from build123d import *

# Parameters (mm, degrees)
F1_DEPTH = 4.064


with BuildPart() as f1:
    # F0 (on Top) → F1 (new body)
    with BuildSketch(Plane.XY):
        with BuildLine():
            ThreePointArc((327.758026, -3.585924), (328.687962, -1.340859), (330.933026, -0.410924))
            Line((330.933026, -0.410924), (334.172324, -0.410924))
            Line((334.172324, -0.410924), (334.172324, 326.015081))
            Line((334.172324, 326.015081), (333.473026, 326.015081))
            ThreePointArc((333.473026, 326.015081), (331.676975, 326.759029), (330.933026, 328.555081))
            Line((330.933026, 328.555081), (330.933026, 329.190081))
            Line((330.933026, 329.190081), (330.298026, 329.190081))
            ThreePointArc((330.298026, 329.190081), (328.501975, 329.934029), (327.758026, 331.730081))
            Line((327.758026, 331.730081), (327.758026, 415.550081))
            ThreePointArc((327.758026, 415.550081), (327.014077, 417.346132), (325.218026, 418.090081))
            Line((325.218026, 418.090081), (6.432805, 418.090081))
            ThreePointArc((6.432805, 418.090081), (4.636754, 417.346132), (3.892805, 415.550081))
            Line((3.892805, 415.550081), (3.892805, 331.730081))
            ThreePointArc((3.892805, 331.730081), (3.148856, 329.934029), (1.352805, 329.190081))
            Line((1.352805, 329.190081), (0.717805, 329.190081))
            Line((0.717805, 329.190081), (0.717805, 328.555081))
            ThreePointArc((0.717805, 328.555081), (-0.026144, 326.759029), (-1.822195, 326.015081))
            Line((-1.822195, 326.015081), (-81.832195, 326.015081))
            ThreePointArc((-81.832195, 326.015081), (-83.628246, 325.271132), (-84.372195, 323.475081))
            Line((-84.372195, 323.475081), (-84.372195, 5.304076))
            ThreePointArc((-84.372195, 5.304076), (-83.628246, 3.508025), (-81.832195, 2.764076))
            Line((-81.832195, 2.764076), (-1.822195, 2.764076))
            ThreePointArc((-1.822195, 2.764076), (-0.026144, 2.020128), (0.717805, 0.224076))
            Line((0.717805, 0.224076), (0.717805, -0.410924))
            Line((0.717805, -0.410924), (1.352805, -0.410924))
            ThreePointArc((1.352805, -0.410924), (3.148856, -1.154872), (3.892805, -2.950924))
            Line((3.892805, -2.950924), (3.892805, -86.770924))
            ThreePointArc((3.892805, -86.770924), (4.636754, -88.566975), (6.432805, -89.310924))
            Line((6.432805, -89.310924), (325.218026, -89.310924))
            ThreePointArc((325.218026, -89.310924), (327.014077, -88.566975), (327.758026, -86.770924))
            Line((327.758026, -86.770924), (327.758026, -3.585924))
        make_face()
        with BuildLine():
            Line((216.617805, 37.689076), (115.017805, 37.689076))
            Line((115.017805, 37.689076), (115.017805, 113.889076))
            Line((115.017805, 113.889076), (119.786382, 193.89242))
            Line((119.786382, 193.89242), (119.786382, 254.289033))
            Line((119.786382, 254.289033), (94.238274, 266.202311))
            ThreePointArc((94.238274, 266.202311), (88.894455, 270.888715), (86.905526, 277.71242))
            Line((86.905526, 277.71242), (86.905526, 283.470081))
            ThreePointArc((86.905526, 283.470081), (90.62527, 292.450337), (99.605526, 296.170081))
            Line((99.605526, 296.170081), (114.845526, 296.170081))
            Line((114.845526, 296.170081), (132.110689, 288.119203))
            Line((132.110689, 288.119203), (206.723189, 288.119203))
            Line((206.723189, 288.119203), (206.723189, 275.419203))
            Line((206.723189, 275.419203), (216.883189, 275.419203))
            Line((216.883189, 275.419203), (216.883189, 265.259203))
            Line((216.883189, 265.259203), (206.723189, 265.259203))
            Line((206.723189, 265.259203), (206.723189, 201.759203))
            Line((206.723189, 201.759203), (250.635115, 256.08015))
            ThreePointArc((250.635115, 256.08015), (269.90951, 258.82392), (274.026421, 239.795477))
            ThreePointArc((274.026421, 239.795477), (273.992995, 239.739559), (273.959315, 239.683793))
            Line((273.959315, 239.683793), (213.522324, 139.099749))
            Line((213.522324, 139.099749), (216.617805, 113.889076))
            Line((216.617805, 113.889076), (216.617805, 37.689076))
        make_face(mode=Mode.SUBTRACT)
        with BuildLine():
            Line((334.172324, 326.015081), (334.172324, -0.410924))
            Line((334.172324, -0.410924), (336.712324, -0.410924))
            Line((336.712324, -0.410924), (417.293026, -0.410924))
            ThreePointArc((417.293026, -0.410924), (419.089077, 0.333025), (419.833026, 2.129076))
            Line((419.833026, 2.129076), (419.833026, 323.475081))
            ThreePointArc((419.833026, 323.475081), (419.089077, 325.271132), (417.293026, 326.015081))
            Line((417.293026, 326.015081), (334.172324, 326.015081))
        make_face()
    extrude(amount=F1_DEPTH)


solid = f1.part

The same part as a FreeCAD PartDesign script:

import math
import FreeCAD as App
import Part
import Sketcher
Q = App.Units.Quantity

doc = App.newDocument("Part")
body = doc.addObject("PartDesign::Body", "Body")

# Sketch on XY plane
sketch1 = body.newObject("Sketcher::SketchObject", "Sketch")
sketch1.AttachmentSupport = (doc.getObject("XY_Plane"), [""])
sketch1.MapMode = "FlatFace"
sketch1.addGeometry([
    Part.ArcOfCircle(Part.Circle(App.Vector(330.93, -3.59, 0), App.Vector(0, 0, 1), 3.17), math.radians(90), math.radians(180)),  # 0
    Part.LineSegment(App.Vector(330.93, -0.41, 0), App.Vector(417.29, -0.41, 0)),  # 1
    Part.ArcOfCircle(Part.Circle(App.Vector(417.29, 2.13, 0), App.Vector(0, 0, 1), 2.54), math.radians(-90), math.radians(0)),  # 2
    Part.LineSegment(App.Vector(419.83, 2.13, 0), App.Vector(419.83, 323.48, 0)),  # 3
    Part.ArcOfCircle(Part.Circle(App.Vector(417.29, 323.48, 0), App.Vector(0, 0, 1), 2.54), math.radians(0), math.radians(90)),  # 4
    Part.LineSegment(App.Vector(417.29, 326.02, 0), App.Vector(333.47, 326.02, 0)),  # 5
    Part.ArcOfCircle(Part.Circle(App.Vector(333.47, 328.56, 0), App.Vector(0, 0, 1), 2.54), math.radians(180), math.radians(270)),  # 6
    Part.LineSegment(App.Vector(330.93, 328.56, 0), App.Vector(330.93, 329.19, 0)),  # 7
    Part.LineSegment(App.Vector(330.93, 329.19, 0), App.Vector(330.3, 329.19, 0)),  # 8
    Part.ArcOfCircle(Part.Circle(App.Vector(330.3, 331.73, 0), App.Vector(0, 0, 1), 2.54), math.radians(180), math.radians(270)),  # 9
    Part.LineSegment(App.Vector(327.76, 331.73, 0), App.Vector(327.76, 415.55, 0)),  # 10
    Part.ArcOfCircle(Part.Circle(App.Vector(325.22, 415.55, 0), App.Vector(0, 0, 1), 2.54), math.radians(0), math.radians(90)),  # 11
    Part.LineSegment(App.Vector(325.22, 418.09, 0), App.Vector(6.43, 418.09, 0)),  # 12
    Part.ArcOfCircle(Part.Circle(App.Vector(6.43, 415.55, 0), App.Vector(0, 0, 1), 2.54), math.radians(90), math.radians(180)),  # 13
    Part.LineSegment(App.Vector(3.89, 415.55, 0), App.Vector(3.89, 331.73, 0)),  # 14
    Part.ArcOfCircle(Part.Circle(App.Vector(1.35, 331.73, 0), App.Vector(0, 0, 1), 2.54), math.radians(-90), math.radians(0)),  # 15
    Part.LineSegment(App.Vector(1.35, 329.19, 0), App.Vector(0.72, 329.19, 0)),  # 16
    Part.LineSegment(App.Vector(0.72, 329.19, 0), App.Vector(0.72, 328.56, 0)),  # 17
    Part.ArcOfCircle(Part.Circle(App.Vector(-1.82, 328.56, 0), App.Vector(0, 0, 1), 2.54), math.radians(-90), math.radians(0)),  # 18
    Part.LineSegment(App.Vector(-1.82, 326.02, 0), App.Vector(-81.83, 326.02, 0)),  # 19
    Part.ArcOfCircle(Part.Circle(App.Vector(-81.83, 323.48, 0), App.Vector(0, 0, 1), 2.54), math.radians(90), math.radians(180)),  # 20
    Part.LineSegment(App.Vector(-84.37, 323.48, 0), App.Vector(-84.37, 5.3, 0)),  # 21
    Part.ArcOfCircle(Part.Circle(App.Vector(-81.83, 5.3, 0), App.Vector(0, 0, 1), 2.54), math.radians(-180), math.radians(-90)),  # 22
    Part.LineSegment(App.Vector(-81.83, 2.76, 0), App.Vector(-1.82, 2.76, 0)),  # 23
    Part.ArcOfCircle(Part.Circle(App.Vector(-1.82, 0.22, 0), App.Vector(0, 0, 1), 2.54), math.radians(0), math.radians(90)),  # 24
    Part.LineSegment(App.Vector(0.72, 0.22, 0), App.Vector(0.72, -0.41, 0)),  # 25
    Part.LineSegment(App.Vector(0.72, -0.41, 0), App.Vector(1.35, -0.41, 0)),  # 26
    Part.ArcOfCircle(Part.Circle(App.Vector(1.35, -2.95, 0), App.Vector(0, 0, 1), 2.54), math.radians(0), math.radians(90)),  # 27
    Part.LineSegment(App.Vector(3.89, -2.95, 0), App.Vector(3.89, -86.77, 0)),  # 28
    Part.ArcOfCircle(Part.Circle(App.Vector(6.43, -86.77, 0), App.Vector(0, 0, 1), 2.54), math.radians(-180), math.radians(-90)),  # 29
    Part.LineSegment(App.Vector(6.43, -89.31, 0), App.Vector(325.22, -89.31, 0)),  # 30
    Part.ArcOfCircle(Part.Circle(App.Vector(325.22, -86.77, 0), App.Vector(0, 0, 1), 2.54), math.radians(-90), math.radians(0)),  # 31
    Part.LineSegment(App.Vector(327.76, -86.77, 0), App.Vector(327.76, -3.59, 0)),  # 32
    Part.LineSegment(App.Vector(216.62, 113.89, 0), App.Vector(216.62, 37.69, 0)),  # 33
    Part.LineSegment(App.Vector(216.62, 37.69, 0), App.Vector(115.02, 37.69, 0)),  # 34
    Part.LineSegment(App.Vector(115.02, 37.69, 0), App.Vector(115.02, 113.89, 0)),  # 35
    Part.LineSegment(App.Vector(115.02, 113.89, 0), App.Vector(119.79, 193.89, 0)),  # 36
    Part.LineSegment(App.Vector(119.79, 193.89, 0), App.Vector(119.79, 254.29, 0)),  # 37
    Part.LineSegment(App.Vector(119.79, 254.29, 0), App.Vector(94.24, 266.2, 0)),  # 38
    Part.ArcOfCircle(Part.Circle(App.Vector(99.61, 277.71, 0), App.Vector(0, 0, 1), 12.7), math.radians(-180), math.radians(-115)),  # 39
    Part.LineSegment(App.Vector(86.91, 277.71, 0), App.Vector(86.91, 283.47, 0)),  # 40
    Part.ArcOfCircle(Part.Circle(App.Vector(99.61, 283.47, 0), App.Vector(0, 0, 1), 12.7), math.radians(90), math.radians(180)),  # 41
    Part.LineSegment(App.Vector(99.61, 296.17, 0), App.Vector(114.85, 296.17, 0)),  # 42
    Part.LineSegment(App.Vector(114.85, 296.17, 0), App.Vector(132.11, 288.12, 0)),  # 43
    Part.LineSegment(App.Vector(132.11, 288.12, 0), App.Vector(206.72, 288.12, 0)),  # 44
    Part.LineSegment(App.Vector(206.72, 288.12, 0), App.Vector(206.72, 275.42, 0)),  # 45
    Part.LineSegment(App.Vector(206.72, 275.42, 0), App.Vector(216.88, 275.42, 0)),  # 46
    Part.LineSegment(App.Vector(216.88, 275.42, 0), App.Vector(216.88, 265.26, 0)),  # 47
    Part.LineSegment(App.Vector(216.88, 265.26, 0), App.Vector(206.72, 265.26, 0)),  # 48
    Part.LineSegment(App.Vector(206.72, 265.26, 0), App.Vector(206.72, 201.76, 0)),  # 49
    Part.LineSegment(App.Vector(206.72, 201.76, 0), App.Vector(250.64, 256.08, 0)),  # 50
    Part.ArcOfCircle(Part.Circle(App.Vector(261.75, 247.1, 0), App.Vector(0, 0, 1), 14.29), math.radians(-31), math.radians(141)),  # 51
    Part.ArcOfCircle(Part.Circle(App.Vector(261.7, 247.12, 0), App.Vector(0, 0, 1), 14.34), math.radians(-31.26), math.radians(-30.74)),  # 52
    Part.LineSegment(App.Vector(273.96, 239.68, 0), App.Vector(213.52, 139.1, 0)),  # 53
    Part.LineSegment(App.Vector(213.52, 139.1, 0), App.Vector(216.62, 113.89, 0)),  # 54
], False)
sketch1.addConstraint([
    Sketcher.Constraint("Tangent", 0, 1, 1, 1),
    Sketcher.Constraint("Tangent", 1, 2, 2, 1),
    Sketcher.Constraint("Tangent", 2, 2, 3, 1),
    Sketcher.Constraint("Tangent", 3, 2, 4, 1),
    Sketcher.Constraint("Tangent", 4, 2, 5, 1),
    Sketcher.Constraint("Tangent", 5, 2, 6, 2),
    Sketcher.Constraint("Tangent", 6, 1, 7, 1),
    Sketcher.Constraint("Coincident", 7, 2, 8, 1),
    Sketcher.Constraint("Tangent", 8, 2, 9, 2),
    Sketcher.Constraint("Tangent", 9, 1, 10, 1),
    Sketcher.Constraint("Tangent", 10, 2, 11, 1),
    Sketcher.Constraint("Tangent", 11, 2, 12, 1),
    Sketcher.Constraint("Tangent", 12, 2, 13, 1),
    Sketcher.Constraint("Tangent", 13, 2, 14, 1),
    Sketcher.Constraint("Tangent", 14, 2, 15, 2),
    Sketcher.Constraint("Tangent", 15, 1, 16, 1),
    Sketcher.Constraint("Coincident", 16, 2, 17, 1),
    Sketcher.Constraint("Tangent", 17, 2, 18, 2),
    Sketcher.Constraint("Tangent", 18, 1, 19, 1),
    Sketcher.Constraint("Tangent", 19, 2, 20, 1),
    Sketcher.Constraint("Tangent", 20, 2, 21, 1),
    Sketcher.Constraint("Tangent", 21, 2, 22, 1),
    Sketcher.Constraint("Tangent", 22, 2, 23, 1),
    Sketcher.Constraint("Tangent", 23, 2, 24, 2),
    Sketcher.Constraint("Tangent", 24, 1, 25, 1),
    Sketcher.Constraint("Coincident", 25, 2, 26, 1),
    Sketcher.Constraint("Tangent", 26, 2, 27, 2),
    Sketcher.Constraint("Tangent", 27, 1, 28, 1),
    Sketcher.Constraint("Tangent", 28, 2, 29, 1),
    Sketcher.Constraint("Tangent", 29, 2, 30, 1),
    Sketcher.Constraint("Tangent", 30, 2, 31, 1),
    Sketcher.Constraint("Tangent", 31, 2, 32, 1),
    Sketcher.Constraint("Tangent", 32, 2, 0, 2),
    Sketcher.Constraint("Coincident", 33, 2, 34, 1),
    Sketcher.Constraint("Coincident", 34, 2, 35, 1),
    Sketcher.Constraint("Coincident", 35, 2, 36, 1),
    Sketcher.Constraint("Coincident", 36, 2, 37, 1),
    Sketcher.Constraint("Coincident", 37, 2, 38, 1),
    Sketcher.Constraint("Tangent", 38, 2, 39, 2),
    Sketcher.Constraint("Tangent", 39, 1, 40, 1),
    Sketcher.Constraint("Tangent", 40, 2, 41, 2),
    Sketcher.Constraint("Tangent", 41, 1, 42, 1),
    Sketcher.Constraint("Coincident", 42, 2, 43, 1),
    Sketcher.Constraint("Coincident", 43, 2, 44, 1),
    Sketcher.Constraint("Coincident", 44, 2, 45, 1),
    Sketcher.Constraint("Coincident", 45, 2, 46, 1),
    Sketcher.Constraint("Coincident", 46, 2, 47, 1),
    Sketcher.Constraint("Coincident", 47, 2, 48, 1),
    Sketcher.Constraint("Coincident", 48, 2, 49, 1),
    Sketcher.Constraint("Coincident", 49, 2, 50, 1),
    Sketcher.Constraint("Tangent", 50, 2, 51, 2),
    Sketcher.Constraint("Coincident", 51, 1, 52, 2),
    Sketcher.Constraint("Coincident", 52, 1, 53, 1),
    Sketcher.Constraint("Coincident", 53, 2, 54, 1),
    Sketcher.Constraint("Coincident", 54, 2, 33, 1),
    Sketcher.Constraint("Horizontal", 1),
    Sketcher.Constraint("Vertical", 3),
    Sketcher.Constraint("Horizontal", 5),
    Sketcher.Constraint("Vertical", 7),
    Sketcher.Constraint("Horizontal", 8),
    Sketcher.Constraint("Vertical", 10),
    Sketcher.Constraint("Horizontal", 12),
    Sketcher.Constraint("Vertical", 14),
    Sketcher.Constraint("Horizontal", 16),
    Sketcher.Constraint("Vertical", 17),
    Sketcher.Constraint("Horizontal", 19),
    Sketcher.Constraint("Vertical", 21),
    Sketcher.Constraint("Horizontal", 23),
    Sketcher.Constraint("Vertical", 25),
    Sketcher.Constraint("Horizontal", 26),
    Sketcher.Constraint("Vertical", 28),
    Sketcher.Constraint("Horizontal", 30),
    Sketcher.Constraint("Vertical", 32),
    Sketcher.Constraint("Vertical", 33),
    Sketcher.Constraint("Horizontal", 34),
    Sketcher.Constraint("Vertical", 35),
    Sketcher.Constraint("Vertical", 37),
    Sketcher.Constraint("Vertical", 40),
    Sketcher.Constraint("Horizontal", 42),
    Sketcher.Constraint("Horizontal", 44),
    Sketcher.Constraint("Vertical", 45),
    Sketcher.Constraint("Horizontal", 46),
    Sketcher.Constraint("Vertical", 47),
    Sketcher.Constraint("Horizontal", 48),
    Sketcher.Constraint("Vertical", 49),
    Sketcher.Constraint("Equal", 2, 4),
    Sketcher.Constraint("Equal", 4, 6),
    Sketcher.Constraint("Equal", 6, 9),
    Sketcher.Constraint("Equal", 9, 11),
    Sketcher.Constraint("Equal", 11, 13),
    Sketcher.Constraint("Equal", 13, 15),
    Sketcher.Constraint("Equal", 15, 18),
    Sketcher.Constraint("Equal", 18, 20),
    Sketcher.Constraint("Equal", 20, 22),
    Sketcher.Constraint("Equal", 22, 24),
    Sketcher.Constraint("Equal", 24, 27),
    Sketcher.Constraint("Equal", 27, 29),
    Sketcher.Constraint("Equal", 29, 31),
    Sketcher.Constraint("Equal", 39, 41),
    Sketcher.Constraint("Parallel", 38, 43),
    Sketcher.Constraint("Horizontal", 9, 3, 15, 3),
    Sketcher.Constraint("Horizontal", 6, 3, 18, 3),
    Sketcher.Constraint("Horizontal", 1, 2, 25, 2),
    Sketcher.Constraint("Horizontal", 35, 2, 54, 2),
    Sketcher.Constraint("Vertical", 18, 3, 24, 3),
    Sketcher.Constraint("Vertical", 15, 3, 27, 3),
    Sketcher.Constraint("Vertical", 11, 3, 31, 3),
    Sketcher.Constraint("Vertical", 0, 1, 6, 1),
    Sketcher.Constraint("Vertical", 45, 2, 48, 2),
    Sketcher.Constraint("Equal", 8, 16),
    Sketcher.Constraint("Equal", 26, 7),
    Sketcher.Constraint("Equal", 5, 10),
    Sketcher.Constraint("Equal", 17, 25),
    Sketcher.Constraint("Equal", 14, 28),
    Sketcher.Constraint("Equal", 48, 47),
    Sketcher.Constraint("Radius", 2, Q("0.1 in")),
    Sketcher.Constraint("Radius", 39, Q("0.5000001 in")),
    Sketcher.Constraint("DistanceX", 34, 2, 34, 1, Q("4 in")),
    Sketcher.Constraint("DistanceY", 33, 2, 33, 1, Q("3 in")),
    Sketcher.Constraint("Distance", 54, Q("1 in")),
    Sketcher.Constraint("DistanceX", 1, 1, 1, 2, Q("3.4 in")),
    Sketcher.Constraint("DistanceX", 42, 1, 42, 2, Q("0.6 in")),
    Sketcher.Constraint("DistanceX", 46, 1, 46, 2, Q("0.4 in")),
    Sketcher.Constraint("DistanceY", 45, 2, 45, 1, Q("0.5 in")),
    Sketcher.Constraint("DistanceY", 49, 2, 49, 1, Q("2.5 in")),
    Sketcher.Constraint("Angle", 38, Q("155.000001 deg")),
    Sketcher.Constraint("Angle", 53, Q("-121 deg")),
    Sketcher.Constraint("Angle", 54, Q("-83.000001 deg")),
    Sketcher.Constraint("Radius", 0, Q("0.1249999 in")),
    Sketcher.Constraint("Radius", 51, Q("0.5625 in")),
    Sketcher.Constraint("DistanceX", 19, 2, 19, 1, Q("3.15 in")),
    Sketcher.Constraint("Distance", 43, Q("0.75 in")),
    Sketcher.Constraint("Distance", 50, Q("2.75 in")),
    Sketcher.Constraint("DistanceX", 44, 1, 44, 2, Q("2.9375 in")),
    Sketcher.Constraint("DistanceX", -1, 1, 52, 1, Q("10.7857998 in")),
    Sketcher.Constraint("Radius", 52, 14.338056),
    Sketcher.Constraint("DistanceX", 12, 2, 12, 1, 318.785221),
    Sketcher.Constraint("DistanceY", 40, 1, 40, 2, 5.757661),
    Sketcher.Constraint("Distance", 38, 28.189218),
    Sketcher.Constraint("DistanceY", 3, 1, 3, 2, 321.346005),
    Sketcher.Constraint("DistanceY", 37, 1, 37, 2, 60.396613),
    Sketcher.Constraint("DistanceY", -1, 1, 4, 3, 323.47508),
    Sketcher.Constraint("DistanceX", -1, 1, 39, 3, 99.605528),
    Sketcher.Constraint("DistanceY", -1, 1, 39, 3, 277.712421),
    Sketcher.Constraint("DistanceY", -1, 1, 52, 3, 247.124162),
    Sketcher.Constraint("DistanceY", -1, 1, 50, 2, 256.08015),
    Sketcher.Constraint("DistanceX", -1, 1, 51, 1, 274.026421),
    Sketcher.Constraint("DistanceY", -1, 1, 53, 2, 139.099749),
    Sketcher.Constraint("DistanceX", -1, 1, 0, 3, 330.933024),
])
pad1 = body.newObject("PartDesign::Pad", "Pad")
pad1.Profile = sketch1
pad1.Length = Q("0.16 in")

doc.recompute()
